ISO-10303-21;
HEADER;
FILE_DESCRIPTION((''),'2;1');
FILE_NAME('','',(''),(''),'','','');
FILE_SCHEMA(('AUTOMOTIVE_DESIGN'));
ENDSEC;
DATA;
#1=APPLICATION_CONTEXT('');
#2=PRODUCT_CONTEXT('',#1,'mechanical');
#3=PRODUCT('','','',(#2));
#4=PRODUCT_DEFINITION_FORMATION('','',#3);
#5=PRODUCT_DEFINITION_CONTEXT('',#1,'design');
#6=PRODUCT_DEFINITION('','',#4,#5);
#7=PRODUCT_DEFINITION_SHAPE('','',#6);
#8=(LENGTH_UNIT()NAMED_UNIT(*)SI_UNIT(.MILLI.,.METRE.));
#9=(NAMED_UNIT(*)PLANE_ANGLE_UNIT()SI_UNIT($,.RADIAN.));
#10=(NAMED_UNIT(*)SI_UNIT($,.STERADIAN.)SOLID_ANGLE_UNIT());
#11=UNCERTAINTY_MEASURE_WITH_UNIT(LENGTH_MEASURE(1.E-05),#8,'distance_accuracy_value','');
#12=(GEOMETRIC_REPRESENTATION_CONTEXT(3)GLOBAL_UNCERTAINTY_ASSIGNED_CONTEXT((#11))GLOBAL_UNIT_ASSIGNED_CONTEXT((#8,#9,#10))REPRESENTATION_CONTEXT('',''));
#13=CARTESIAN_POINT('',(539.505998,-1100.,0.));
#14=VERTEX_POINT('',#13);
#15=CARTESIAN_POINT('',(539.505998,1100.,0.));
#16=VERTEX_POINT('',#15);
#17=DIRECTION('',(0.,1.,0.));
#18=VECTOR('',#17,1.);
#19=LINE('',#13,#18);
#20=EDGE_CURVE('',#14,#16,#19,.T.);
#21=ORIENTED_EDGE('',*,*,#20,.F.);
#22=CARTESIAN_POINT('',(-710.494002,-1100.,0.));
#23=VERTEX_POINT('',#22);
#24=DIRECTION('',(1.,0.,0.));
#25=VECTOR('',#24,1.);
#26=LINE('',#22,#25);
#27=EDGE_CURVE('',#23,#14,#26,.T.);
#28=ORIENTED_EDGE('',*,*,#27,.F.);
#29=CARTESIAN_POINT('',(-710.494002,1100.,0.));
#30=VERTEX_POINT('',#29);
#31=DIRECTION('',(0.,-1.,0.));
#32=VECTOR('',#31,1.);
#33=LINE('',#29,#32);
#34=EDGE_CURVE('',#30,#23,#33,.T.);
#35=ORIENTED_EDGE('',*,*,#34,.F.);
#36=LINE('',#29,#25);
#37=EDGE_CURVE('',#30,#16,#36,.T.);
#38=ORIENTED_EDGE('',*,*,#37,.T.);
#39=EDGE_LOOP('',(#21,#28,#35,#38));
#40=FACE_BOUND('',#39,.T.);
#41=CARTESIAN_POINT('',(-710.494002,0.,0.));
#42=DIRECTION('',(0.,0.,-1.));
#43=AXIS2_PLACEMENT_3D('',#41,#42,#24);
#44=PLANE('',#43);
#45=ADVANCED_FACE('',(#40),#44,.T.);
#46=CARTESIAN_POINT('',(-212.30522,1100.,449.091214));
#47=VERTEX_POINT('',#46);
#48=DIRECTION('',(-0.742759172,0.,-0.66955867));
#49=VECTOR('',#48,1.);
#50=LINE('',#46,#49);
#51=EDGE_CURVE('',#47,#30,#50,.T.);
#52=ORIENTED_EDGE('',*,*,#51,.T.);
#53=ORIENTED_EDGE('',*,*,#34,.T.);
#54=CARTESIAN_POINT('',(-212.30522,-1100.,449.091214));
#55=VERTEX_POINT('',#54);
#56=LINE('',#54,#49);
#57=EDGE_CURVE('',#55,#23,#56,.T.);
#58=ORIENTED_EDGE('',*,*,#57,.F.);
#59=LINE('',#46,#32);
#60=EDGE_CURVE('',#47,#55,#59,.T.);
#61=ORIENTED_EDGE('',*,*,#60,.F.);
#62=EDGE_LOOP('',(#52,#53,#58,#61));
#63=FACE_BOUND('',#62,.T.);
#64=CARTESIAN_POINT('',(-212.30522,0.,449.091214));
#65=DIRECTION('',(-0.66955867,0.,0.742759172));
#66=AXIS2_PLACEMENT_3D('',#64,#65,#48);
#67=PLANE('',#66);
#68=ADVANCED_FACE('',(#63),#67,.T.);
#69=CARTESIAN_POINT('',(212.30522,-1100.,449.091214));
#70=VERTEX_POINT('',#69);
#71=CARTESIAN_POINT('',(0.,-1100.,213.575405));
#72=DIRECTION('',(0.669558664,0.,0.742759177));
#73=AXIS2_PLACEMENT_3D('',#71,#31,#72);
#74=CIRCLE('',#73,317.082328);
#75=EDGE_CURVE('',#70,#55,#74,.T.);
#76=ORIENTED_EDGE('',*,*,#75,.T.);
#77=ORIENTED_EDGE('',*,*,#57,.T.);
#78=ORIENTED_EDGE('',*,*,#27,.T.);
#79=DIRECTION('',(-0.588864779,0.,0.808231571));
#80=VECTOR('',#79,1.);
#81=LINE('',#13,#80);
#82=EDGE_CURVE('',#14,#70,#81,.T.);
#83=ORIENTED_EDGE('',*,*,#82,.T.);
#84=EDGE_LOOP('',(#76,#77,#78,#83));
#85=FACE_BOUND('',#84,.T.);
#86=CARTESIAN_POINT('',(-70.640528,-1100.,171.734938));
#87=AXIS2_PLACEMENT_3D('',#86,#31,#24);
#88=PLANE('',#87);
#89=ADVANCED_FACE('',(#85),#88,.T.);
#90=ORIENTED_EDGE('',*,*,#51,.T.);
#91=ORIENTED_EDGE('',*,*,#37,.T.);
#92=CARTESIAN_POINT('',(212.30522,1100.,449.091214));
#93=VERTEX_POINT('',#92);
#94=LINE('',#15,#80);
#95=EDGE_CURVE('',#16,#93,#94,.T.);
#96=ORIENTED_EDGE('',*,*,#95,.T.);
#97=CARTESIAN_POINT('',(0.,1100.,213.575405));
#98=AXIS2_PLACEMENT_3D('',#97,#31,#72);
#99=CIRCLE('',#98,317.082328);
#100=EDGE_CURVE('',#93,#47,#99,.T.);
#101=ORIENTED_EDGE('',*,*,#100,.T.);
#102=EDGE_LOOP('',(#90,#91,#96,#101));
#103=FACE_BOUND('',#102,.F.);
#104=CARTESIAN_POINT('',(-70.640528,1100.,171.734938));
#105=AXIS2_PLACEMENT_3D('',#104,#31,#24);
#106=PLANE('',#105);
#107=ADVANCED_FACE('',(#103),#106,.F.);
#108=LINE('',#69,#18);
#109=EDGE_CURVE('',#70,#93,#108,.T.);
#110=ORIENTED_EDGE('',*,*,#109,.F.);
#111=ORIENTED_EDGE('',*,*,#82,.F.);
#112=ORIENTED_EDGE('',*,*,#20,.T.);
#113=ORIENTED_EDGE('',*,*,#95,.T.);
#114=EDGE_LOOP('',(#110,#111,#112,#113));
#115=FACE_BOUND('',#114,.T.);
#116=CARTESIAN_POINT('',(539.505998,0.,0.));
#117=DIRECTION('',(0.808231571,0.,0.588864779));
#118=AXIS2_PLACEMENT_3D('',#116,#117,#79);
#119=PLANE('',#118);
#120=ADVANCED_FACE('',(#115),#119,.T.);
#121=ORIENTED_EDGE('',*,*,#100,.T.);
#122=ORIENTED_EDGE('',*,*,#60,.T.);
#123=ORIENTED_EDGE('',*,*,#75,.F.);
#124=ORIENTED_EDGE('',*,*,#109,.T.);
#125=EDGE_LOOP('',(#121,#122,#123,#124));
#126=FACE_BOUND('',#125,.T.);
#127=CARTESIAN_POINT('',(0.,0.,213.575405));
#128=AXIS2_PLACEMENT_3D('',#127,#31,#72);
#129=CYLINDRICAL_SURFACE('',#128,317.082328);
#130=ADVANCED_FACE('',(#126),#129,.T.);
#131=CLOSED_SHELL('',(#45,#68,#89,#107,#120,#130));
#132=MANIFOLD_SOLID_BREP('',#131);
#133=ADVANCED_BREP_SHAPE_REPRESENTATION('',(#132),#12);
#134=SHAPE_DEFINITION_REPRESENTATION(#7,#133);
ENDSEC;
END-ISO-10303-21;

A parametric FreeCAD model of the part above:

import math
import FreeCAD as App
import Part
import Sketcher

V = App.Vector
Q = App.Units.Quantity

doc = App.newDocument("Part")
body = doc.addObject("PartDesign::Body", "Body")

# Sketch on XZ plane
sketch1 = body.newObject("Sketcher::SketchObject", "Sketch")
sketch1.AttachmentSupport = (doc.getObject("XZ_Plane"), [""])
sketch1.MapMode = "FlatFace"
sketch1.addGeometry(Part.ArcOfCircle(Part.Circle(V(0, 214, 0), V(0, 0, 1), 317), math.radians(48), math.radians(132)), False)
sketch1.addGeometry(Part.LineSegment(V(-212, 449, 0), V(-710, 0, 0)), False)
sketch1.addGeometry(Part.LineSegment(V(-710, 0, 0), V(540, 0, 0)), False)
sketch1.addGeometry(Part.LineSegment(V(540, 0, 0), V(212, 449, 0)), False)
sketch1.addConstraint(Sketcher.Constraint("Tangent", 0, 2, 1, 1))
sketch1.addConstraint(Sketcher.Constraint("Coincident", 1, 2, 2, 1))
sketch1.addConstraint(Sketcher.Constraint("Coincident", 2, 2, 3, 1))
sketch1.addConstraint(Sketcher.Constraint("Coincident", 3, 2, 0, 1))
sketch1.addConstraint(Sketcher.Constraint("Horizontal", 2))
sketch1.addConstraint(Sketcher.Constraint("Symmetric", 0, 2, 3, 2, -2))
sketch1.addConstraint(Sketcher.Constraint("PointOnObject", 1, 2, -1))
sketch1.addConstraint(Sketcher.Constraint("DistanceX", 2, 1, 2, 2, Q("1250 mm")))
sketch1.addConstraint(Sketcher.Constraint("DistanceX", 1, 2, -1, 1, Q("710.494002 mm")))
sketch1.addConstraint(Sketcher.Constraint("Radius", 0, Q("317.082328 mm")))
sketch1.addConstraint(Sketcher.Constraint("Distance", 3, Q("555.646711 mm")))
pad1 = body.newObject("PartDesign::Pad", "Pad")
pad1.Profile = sketch1
pad1.Length = 2200
pad1.Midplane = True

doc.recompute()
